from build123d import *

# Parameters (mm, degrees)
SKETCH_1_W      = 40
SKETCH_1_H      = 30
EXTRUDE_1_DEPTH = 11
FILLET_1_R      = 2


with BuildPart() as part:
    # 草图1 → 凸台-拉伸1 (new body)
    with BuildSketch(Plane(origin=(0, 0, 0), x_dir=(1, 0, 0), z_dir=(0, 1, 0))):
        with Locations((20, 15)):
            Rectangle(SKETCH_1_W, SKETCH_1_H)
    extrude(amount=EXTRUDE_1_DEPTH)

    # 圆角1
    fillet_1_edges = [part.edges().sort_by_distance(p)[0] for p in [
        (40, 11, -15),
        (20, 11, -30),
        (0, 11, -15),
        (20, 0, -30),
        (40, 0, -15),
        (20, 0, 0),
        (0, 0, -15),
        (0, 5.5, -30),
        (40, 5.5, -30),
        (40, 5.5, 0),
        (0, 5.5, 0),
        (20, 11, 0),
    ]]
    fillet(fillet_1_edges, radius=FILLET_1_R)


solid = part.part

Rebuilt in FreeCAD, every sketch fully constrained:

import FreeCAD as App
import Part
import Sketcher

V = App.Vector
Q = App.Units.Quantity


def add_polygon(sketch, points):
    """Adds a closed chain of lines whose ends are joined by coincident constraints."""
    first, n = sketch.GeometryCount, len(points)
    for a, b in zip(points, points[1:] + points[:1]):
        sketch.addGeometry(Part.LineSegment(App.Vector(*a, 0), App.Vector(*b, 0)), False)
    for i in range(n):
        sketch.addConstraint(Sketcher.Constraint("Coincident", first + i, 2, first + (i + 1) % n, 1))

doc = App.newDocument("Part")
body = doc.addObject("PartDesign::Body", "Body")

# Sketch on XZ plane
sketch1 = body.newObject("Sketcher::SketchObject", "Sketch")
sketch1.AttachmentSupport = (doc.getObject("XZ_Plane"), [""])
sketch1.MapMode = "FlatFace"
add_polygon(sketch1, [(0, -30), (0, 0), (40, 0), (40, -30)])  # lines 0-3
sketch1.addConstraint([
    Sketcher.Constraint("Vertical", 0),
    Sketcher.Constraint("Horizontal", 1),
    Sketcher.Constraint("Vertical", 2),
    Sketcher.Constraint("Horizontal", 3),
    Sketcher.Constraint("Coincident", 0, 2, -1, 1),
    Sketcher.Constraint("DistanceX", 1, 1, 1, 2, Q("40 mm")),
    Sketcher.Constraint("DistanceY", 0, 1, 0, 2, Q("30 mm")),
])
pad1 = body.newObject("PartDesign::Pad", "Pad")
pad1.Profile = sketch1
pad1.Length = 11
pad1.Reversed = True
doc.recompute()

fillet = body.newObject("PartDesign::Fillet", "Fillet")
fillet.Base = (pad1, ["Edge1"])
fillet.UseAllEdges = True
fillet.Radius = 2

doc.recompute()
